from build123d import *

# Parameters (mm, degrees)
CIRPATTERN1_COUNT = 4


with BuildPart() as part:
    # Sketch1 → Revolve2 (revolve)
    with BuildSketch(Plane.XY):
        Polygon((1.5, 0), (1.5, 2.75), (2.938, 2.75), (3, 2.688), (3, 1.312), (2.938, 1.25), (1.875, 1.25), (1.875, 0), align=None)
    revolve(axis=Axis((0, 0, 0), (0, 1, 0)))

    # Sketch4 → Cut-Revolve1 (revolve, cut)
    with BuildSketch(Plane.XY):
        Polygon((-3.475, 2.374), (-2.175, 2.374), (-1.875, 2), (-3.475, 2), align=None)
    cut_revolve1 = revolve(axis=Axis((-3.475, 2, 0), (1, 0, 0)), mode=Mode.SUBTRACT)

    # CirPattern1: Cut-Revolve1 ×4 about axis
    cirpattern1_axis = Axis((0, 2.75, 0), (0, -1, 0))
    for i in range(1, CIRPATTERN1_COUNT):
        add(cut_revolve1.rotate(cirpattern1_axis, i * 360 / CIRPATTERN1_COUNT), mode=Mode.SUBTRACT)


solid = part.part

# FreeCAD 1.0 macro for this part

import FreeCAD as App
import Part
import Sketcher

V = App.Vector
Q = App.Units.Quantity


def add_polygon(sketch, points):
    """Adds a closed chain of lines whose ends are joined by coincident constraints."""
    first, n = sketch.GeometryCount, len(points)
    for a, b in zip(points, points[1:] + points[:1]):
        sketch.addGeometry(Part.LineSegment(App.Vector(*a, 0), App.Vector(*b, 0)), False)
    for i in range(n):
        sketch.addConstraint(Sketcher.Constraint("Coincident", first + i, 2, first + (i + 1) % n, 1))

doc = App.newDocument("Part")
body = doc.addObject("PartDesign::Body", "Body")

# Sketch on XY plane
sketch1 = body.newObject("Sketcher::SketchObject", "Sketch")
sketch1.AttachmentSupport = (doc.getObject("XY_Plane"), [""])
sketch1.MapMode = "FlatFace"
add_polygon(sketch1, [(1.5, 2.75), (1.5, 0), (1.875, 0), (1.875, 1.25), (2.938, 1.25), (3, 1.312), (3, 2.688), (2.938, 2.75)])  # lines 0-7
sketch1.addConstraint([
    Sketcher.Constraint("Vertical", 0),
    Sketcher.Constraint("Horizontal", 1),
    Sketcher.Constraint("Vertical", 2),
    Sketcher.Constraint("Horizontal", 3),
    Sketcher.Constraint("Vertical", 5),
    Sketcher.Constraint("Horizontal", 7),
    Sketcher.Constraint("PointOnObject", 0, 2, -1),
    Sketcher.Constraint("Perpendicular", 4, 6),
    Sketcher.Constraint("Vertical", 3, 2, 6, 2),
    Sketcher.Constraint("Equal", 4, 6),
    Sketcher.Constraint("DistanceX", -1, 1, 4, 2, Q("3 mm")),
    Sketcher.Constraint("DistanceY", 0, 2, 0, 1, Q("2.75 mm")),
    Sketcher.Constraint("DistanceY", 2, 1, 2, 2, Q("1.25 mm")),
    Sketcher.Constraint("DistanceX", -1, 1, 0, 2, Q("1.5 mm")),
    Sketcher.Constraint("DistanceX", 1, 1, 1, 2, Q("0.375 mm")),
    Sketcher.Constraint("DistanceX", 3, 1, 3, 2, Q("1.063 mm")),
])
revolution = body.newObject("PartDesign::Revolution", "Revolution")
revolution.Profile = sketch1
revolution.ReferenceAxis = (sketch1, ["V_Axis"])
revolution.Angle = 360

# Sketch on XY plane
sketch2 = body.newObject("Sketcher::SketchObject", "Sketch001")
sketch2.AttachmentSupport = (doc.getObject("XY_Plane"), [""])
sketch2.MapMode = "FlatFace"
add_polygon(sketch2, [(-2.175, 2.374), (-3.475, 2.374), (-3.475, 2), (-1.875, 2)])  # lines 0-3
sketch2.addGeometry(Part.LineSegment(V(-3.475, 2, 0), V(-1.875, 2, 0)), True)  # axis
sketch2.addConstraint([
    Sketcher.Constraint("Horizontal", 0),
    Sketcher.Constraint("Vertical", 1),
    Sketcher.Constraint("Horizontal", 2),
    Sketcher.Constraint("Horizontal", 4),
    Sketcher.Constraint("Coincident", 4, 1, 1, 2),
    Sketcher.Constraint("Equal", 2, 4),
    Sketcher.Constraint("DistanceX", 0, 2, 0, 1, Q("1.3 mm")),
    Sketcher.Constraint("DistanceX", 2, 1, 2, 2, Q("1.6 mm")),
    Sketcher.Constraint("DistanceY", -1, 1, 1, 2, Q("2 mm")),
    Sketcher.Constraint("DistanceY", 1, 2, 1, 1, Q("0.374 mm")),
    Sketcher.Constraint("DistanceX", 0, 2, -1, 1, Q("3.475 mm")),
])
groove = body.newObject("PartDesign::Groove", "Groove")
groove.Profile = sketch2
groove.ReferenceAxis = (sketch2, ["Axis0"])
groove.Angle = 360
doc.recompute()

polarpattern = body.newObject("PartDesign::PolarPattern", "PolarPattern")
polarpattern.Originals = [groove]
polarpattern.Axis = (doc.getObject("Y_Axis"), [""])
polarpattern.Angle = 360
polarpattern.Occurrences = 4
body.Tip = polarpattern

doc.recompute()
